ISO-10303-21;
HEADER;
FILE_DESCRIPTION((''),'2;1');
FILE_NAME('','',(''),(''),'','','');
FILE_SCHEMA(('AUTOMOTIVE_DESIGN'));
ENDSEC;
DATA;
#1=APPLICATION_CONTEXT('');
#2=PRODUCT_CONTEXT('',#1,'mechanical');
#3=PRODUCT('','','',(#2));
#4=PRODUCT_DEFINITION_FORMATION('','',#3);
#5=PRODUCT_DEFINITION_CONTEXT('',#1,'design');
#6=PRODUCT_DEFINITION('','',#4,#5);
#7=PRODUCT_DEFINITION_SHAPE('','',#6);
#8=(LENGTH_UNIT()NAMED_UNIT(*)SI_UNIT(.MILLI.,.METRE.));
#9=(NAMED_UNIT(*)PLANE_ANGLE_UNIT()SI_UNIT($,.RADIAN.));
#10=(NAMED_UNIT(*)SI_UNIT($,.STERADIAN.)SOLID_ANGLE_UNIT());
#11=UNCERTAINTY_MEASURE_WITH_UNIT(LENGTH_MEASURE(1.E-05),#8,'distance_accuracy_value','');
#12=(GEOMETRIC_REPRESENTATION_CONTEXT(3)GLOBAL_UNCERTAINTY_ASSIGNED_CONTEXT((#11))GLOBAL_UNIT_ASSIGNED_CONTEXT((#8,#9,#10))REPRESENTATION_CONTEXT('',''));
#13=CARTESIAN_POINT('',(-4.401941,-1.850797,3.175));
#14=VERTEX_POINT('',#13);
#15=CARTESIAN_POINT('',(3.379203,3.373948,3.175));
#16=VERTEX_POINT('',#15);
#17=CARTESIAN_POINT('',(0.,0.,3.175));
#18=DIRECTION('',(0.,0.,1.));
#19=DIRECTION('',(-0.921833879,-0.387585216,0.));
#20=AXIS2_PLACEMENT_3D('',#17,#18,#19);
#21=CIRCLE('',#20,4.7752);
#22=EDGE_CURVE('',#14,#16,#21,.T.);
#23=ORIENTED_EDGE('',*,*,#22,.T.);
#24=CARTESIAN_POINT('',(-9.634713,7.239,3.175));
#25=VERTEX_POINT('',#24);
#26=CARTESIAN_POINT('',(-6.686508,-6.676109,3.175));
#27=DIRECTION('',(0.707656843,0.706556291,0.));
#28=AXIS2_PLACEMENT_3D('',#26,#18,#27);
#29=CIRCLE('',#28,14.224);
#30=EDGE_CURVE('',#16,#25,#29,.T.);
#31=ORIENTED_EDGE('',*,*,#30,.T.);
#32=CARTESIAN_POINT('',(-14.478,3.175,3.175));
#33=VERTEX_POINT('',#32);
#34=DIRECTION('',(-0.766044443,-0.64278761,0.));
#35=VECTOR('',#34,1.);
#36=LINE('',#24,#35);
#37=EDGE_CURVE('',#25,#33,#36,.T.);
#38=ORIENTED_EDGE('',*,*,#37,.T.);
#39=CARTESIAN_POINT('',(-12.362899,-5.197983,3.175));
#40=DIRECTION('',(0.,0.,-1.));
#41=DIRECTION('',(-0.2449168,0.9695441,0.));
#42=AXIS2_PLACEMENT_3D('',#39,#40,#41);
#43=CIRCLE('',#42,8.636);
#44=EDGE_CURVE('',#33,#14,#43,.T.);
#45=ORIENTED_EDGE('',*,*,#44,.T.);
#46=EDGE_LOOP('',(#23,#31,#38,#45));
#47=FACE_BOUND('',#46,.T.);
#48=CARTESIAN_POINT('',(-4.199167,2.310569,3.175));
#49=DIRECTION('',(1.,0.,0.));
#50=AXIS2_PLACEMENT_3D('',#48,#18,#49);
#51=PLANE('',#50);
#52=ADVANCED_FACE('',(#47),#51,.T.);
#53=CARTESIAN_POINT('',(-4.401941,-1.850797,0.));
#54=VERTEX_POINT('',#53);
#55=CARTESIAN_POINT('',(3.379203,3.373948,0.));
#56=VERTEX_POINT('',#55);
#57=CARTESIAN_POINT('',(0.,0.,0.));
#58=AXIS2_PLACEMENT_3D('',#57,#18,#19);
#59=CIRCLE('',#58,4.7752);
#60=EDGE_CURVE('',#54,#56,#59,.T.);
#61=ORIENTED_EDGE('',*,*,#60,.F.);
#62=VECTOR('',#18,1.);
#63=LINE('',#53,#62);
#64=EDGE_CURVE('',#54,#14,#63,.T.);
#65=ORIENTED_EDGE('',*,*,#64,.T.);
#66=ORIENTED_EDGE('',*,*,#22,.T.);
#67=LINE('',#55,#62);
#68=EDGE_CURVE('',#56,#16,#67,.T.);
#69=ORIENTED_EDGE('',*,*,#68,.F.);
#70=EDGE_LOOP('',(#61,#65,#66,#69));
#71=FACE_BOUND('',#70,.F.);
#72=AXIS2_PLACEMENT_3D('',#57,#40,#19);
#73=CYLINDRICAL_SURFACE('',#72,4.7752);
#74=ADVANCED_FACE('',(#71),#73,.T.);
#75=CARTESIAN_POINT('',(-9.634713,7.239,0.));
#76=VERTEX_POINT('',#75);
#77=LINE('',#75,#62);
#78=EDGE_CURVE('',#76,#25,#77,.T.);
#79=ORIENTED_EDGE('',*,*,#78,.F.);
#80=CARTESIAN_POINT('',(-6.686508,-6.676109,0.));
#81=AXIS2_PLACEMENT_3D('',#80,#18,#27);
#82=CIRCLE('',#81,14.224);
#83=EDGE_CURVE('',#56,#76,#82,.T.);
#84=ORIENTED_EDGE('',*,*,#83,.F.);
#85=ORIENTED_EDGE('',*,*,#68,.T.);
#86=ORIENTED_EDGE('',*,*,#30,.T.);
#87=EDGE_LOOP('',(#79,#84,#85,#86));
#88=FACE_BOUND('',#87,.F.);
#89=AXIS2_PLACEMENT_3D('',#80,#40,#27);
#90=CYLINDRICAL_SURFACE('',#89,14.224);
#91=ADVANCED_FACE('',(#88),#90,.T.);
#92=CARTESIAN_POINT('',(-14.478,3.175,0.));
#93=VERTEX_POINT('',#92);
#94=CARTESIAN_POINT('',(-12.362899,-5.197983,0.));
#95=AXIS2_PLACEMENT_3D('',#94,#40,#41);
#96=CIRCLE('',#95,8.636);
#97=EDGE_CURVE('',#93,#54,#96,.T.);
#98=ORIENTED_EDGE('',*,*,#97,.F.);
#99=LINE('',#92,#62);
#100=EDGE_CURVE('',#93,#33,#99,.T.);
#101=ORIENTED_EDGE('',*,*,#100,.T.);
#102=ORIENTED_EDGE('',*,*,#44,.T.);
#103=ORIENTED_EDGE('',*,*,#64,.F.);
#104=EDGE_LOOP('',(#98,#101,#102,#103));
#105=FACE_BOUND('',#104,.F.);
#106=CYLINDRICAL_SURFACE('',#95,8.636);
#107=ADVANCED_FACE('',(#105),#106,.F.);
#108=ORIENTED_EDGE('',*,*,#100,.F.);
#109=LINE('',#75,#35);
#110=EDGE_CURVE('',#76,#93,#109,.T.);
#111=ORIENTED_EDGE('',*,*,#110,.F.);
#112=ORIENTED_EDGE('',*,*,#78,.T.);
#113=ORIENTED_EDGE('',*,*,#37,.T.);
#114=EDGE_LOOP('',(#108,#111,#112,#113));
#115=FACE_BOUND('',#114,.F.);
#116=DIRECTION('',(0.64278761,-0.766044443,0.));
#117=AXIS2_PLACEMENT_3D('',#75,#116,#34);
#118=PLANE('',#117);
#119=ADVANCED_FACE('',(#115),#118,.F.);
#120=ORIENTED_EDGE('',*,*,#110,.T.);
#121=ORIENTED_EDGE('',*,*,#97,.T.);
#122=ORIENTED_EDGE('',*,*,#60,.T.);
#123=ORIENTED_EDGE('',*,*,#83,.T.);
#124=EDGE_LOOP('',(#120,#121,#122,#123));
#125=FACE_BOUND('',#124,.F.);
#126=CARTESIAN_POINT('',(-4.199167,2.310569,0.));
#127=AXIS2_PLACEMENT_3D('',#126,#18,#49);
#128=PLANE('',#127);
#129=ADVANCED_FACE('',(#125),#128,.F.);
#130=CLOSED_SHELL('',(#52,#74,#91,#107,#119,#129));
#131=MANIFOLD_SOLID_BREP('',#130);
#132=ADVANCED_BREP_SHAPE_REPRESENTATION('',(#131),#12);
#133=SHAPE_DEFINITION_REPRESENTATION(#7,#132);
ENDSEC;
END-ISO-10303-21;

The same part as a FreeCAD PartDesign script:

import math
import FreeCAD as App
import Part
import Sketcher
Q = App.Units.Quantity

doc = App.newDocument("Part")
params = doc.addObject("Spreadsheet::Sheet", "Params")
for row, (alias, value) in enumerate([
    ("sketch1_radius", "0.34 in"),
    ("sketch1_radius2", "0.56 in"),
    ("sketch1_radius3", "0.188 in"),
    ("pad1_length", "0.125 in"),
], start=1):
    params.set(f"A{row}", alias)
    params.set(f"B{row}", "=" + value)
    params.setAlias(f"B{row}", alias)

body = doc.addObject("PartDesign::Body", "Body")

sketch1 = body.newObject("Sketcher::SketchObject", "Sketch")
sketch1.AttachmentSupport = (doc.getObject("XY_Plane"), [""])
sketch1.MapMode = "FlatFace"
sketch1.addGeometry(Part.LineSegment(App.Vector(-9.6, 7.2, 0), App.Vector(-14.5, 3.2, 0)), False)
sketch1.addGeometry(Part.ArcOfCircle(Part.Circle(App.Vector(-12.4, -5.2, 0), App.Vector(0, 0, 1), 8.6), math.radians(23), math.radians(104)), False)
sketch1.addGeometry(Part.ArcOfCircle(Part.Circle(App.Vector(0, 0, 0), App.Vector(0, 0, 1), 4.8), math.radians(-157), math.radians(45)), False)
sketch1.addGeometry(Part.ArcOfCircle(Part.Circle(App.Vector(-6.7, -6.7, 0), App.Vector(0, 0, 1), 14.2), math.radians(45), math.radians(102)), False)
sketch1.addConstraint(Sketcher.Constraint("Coincident", 0, 2, 1, 2))
sketch1.addConstraint(Sketcher.Constraint("Tangent", 1, 1, 2, 1))
sketch1.addConstraint(Sketcher.Constraint("Tangent", 2, 2, 3, 1))
sketch1.addConstraint(Sketcher.Constraint("Coincident", 3, 2, 0, 1))
sketch1.addConstraint(Sketcher.Constraint("Coincident", 2, 3, -1, 1))
sketch1.addConstraint(Sketcher.Constraint("Radius", 1, Q("0.34 in")))
sketch1.addConstraint(Sketcher.Constraint("Radius", 3, Q("0.56 in")))
sketch1.addConstraint(Sketcher.Constraint("Angle", 0, Q("-140 deg")))
sketch1.addConstraint(Sketcher.Constraint("Radius", 2, Q("0.188 in")))
sketch1.addConstraint(Sketcher.Constraint("DistanceX", 0, 2, -1, 1, Q("0.57 in")))
sketch1.addConstraint(Sketcher.Constraint("DistanceY", 0, 2, 3, 2, Q("0.16 in")))
sketch1.addConstraint(Sketcher.Constraint("DistanceY", -1, 1, 0, 2, Q("0.125 in")))
sketch1.setExpression("Constraints[5]", "Params.sketch1_radius")
sketch1.setExpression("Constraints[6]", "Params.sketch1_radius2")
sketch1.setExpression("Constraints[8]", "Params.sketch1_radius3")
pad1 = body.newObject("PartDesign::Pad", "Pad")
pad1.Profile = sketch1
pad1.setExpression("Length", "Params.pad1_length")

doc.recompute()
